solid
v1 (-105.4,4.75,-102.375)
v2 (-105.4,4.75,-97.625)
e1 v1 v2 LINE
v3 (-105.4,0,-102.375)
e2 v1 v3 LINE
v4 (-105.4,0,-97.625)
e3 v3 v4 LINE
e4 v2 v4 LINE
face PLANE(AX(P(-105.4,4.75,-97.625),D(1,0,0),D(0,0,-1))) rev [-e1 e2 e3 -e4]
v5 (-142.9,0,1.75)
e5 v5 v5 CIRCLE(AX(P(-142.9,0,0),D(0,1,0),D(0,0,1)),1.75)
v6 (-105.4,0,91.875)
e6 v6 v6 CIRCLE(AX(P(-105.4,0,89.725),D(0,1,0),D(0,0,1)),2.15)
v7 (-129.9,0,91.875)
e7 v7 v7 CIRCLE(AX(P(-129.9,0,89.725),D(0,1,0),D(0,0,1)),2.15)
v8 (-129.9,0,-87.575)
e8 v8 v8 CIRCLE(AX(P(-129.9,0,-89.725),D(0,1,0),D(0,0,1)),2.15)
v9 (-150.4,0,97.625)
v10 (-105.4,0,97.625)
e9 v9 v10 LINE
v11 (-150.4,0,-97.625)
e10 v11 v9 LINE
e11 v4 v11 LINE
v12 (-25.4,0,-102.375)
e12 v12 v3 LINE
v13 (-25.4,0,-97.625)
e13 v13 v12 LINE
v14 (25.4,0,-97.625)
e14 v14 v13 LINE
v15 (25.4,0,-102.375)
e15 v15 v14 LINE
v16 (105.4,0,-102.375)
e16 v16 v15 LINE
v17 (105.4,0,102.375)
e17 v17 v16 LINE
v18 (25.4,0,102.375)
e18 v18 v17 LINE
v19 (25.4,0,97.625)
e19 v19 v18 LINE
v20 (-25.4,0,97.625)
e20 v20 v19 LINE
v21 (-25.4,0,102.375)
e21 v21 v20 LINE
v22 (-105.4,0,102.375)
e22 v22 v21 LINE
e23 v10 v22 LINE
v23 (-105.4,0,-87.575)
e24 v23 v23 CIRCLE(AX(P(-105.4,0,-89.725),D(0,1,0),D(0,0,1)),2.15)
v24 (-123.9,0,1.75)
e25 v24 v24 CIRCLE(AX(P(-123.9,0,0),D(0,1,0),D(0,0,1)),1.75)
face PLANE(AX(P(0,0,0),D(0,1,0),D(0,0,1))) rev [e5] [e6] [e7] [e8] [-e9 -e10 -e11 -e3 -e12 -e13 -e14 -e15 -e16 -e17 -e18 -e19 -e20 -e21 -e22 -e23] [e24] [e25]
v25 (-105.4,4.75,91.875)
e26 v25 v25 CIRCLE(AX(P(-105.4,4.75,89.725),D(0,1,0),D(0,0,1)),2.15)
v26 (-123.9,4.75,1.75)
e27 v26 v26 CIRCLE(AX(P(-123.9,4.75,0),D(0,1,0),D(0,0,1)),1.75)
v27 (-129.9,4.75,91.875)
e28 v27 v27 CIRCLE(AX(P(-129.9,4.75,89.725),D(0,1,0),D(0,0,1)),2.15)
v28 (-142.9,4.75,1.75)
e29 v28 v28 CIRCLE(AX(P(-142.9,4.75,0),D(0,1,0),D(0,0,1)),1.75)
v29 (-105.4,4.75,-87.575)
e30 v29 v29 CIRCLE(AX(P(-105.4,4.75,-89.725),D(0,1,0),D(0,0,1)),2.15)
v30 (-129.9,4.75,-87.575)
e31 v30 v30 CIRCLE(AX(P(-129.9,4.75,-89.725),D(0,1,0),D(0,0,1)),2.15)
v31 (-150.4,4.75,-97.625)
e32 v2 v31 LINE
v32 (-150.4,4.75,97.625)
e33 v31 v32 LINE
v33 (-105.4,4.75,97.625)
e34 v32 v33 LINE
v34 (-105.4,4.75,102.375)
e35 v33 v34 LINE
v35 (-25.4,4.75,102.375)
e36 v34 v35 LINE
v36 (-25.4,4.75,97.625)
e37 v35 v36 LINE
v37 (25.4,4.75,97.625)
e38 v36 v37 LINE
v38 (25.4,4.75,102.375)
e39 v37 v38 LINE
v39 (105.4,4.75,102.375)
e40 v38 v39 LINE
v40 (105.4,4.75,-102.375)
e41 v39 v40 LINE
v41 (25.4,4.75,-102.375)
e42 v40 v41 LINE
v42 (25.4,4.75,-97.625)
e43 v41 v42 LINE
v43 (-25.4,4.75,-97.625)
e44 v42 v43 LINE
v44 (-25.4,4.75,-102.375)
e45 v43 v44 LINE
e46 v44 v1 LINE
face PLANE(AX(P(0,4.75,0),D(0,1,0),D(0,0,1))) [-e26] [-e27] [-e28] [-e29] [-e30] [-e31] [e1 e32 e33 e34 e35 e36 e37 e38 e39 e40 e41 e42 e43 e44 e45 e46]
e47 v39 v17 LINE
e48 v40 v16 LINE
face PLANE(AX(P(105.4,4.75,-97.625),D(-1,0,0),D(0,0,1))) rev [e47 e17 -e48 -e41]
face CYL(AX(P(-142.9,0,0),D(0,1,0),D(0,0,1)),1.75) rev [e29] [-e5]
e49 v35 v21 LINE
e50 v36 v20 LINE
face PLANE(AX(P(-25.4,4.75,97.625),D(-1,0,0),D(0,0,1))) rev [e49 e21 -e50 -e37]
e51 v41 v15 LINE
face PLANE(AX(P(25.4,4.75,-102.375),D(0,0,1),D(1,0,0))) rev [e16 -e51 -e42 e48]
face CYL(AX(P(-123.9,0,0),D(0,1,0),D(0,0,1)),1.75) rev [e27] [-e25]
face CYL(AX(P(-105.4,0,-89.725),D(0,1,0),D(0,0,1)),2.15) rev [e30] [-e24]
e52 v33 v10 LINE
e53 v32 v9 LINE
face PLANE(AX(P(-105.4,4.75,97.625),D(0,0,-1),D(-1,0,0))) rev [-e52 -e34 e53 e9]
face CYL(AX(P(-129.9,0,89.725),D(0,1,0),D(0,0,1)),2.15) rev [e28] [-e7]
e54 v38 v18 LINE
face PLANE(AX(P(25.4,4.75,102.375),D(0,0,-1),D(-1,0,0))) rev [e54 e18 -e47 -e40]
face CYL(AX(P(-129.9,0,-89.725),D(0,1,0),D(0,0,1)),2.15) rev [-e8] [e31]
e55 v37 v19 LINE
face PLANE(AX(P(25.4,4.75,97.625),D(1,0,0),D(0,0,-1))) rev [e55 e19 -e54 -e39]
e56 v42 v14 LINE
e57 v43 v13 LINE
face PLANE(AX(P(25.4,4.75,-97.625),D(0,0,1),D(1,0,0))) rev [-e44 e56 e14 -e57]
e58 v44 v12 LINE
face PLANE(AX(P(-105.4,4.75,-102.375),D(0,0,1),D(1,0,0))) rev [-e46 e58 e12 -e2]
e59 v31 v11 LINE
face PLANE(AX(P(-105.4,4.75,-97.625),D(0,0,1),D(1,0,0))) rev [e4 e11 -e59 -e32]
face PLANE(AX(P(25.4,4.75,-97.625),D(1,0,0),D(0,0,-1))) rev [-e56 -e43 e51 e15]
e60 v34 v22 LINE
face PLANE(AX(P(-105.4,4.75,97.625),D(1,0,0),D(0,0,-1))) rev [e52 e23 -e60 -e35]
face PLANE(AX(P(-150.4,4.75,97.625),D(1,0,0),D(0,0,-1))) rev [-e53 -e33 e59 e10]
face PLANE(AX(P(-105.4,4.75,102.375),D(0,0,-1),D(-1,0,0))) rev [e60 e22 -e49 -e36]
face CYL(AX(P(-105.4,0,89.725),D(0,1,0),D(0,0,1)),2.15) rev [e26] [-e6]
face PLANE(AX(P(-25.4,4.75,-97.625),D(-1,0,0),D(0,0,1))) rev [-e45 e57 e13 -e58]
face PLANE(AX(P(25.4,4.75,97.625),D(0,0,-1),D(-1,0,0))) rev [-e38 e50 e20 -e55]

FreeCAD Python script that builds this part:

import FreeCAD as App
import Part
import Sketcher

V = App.Vector
Q = App.Units.Quantity

doc = App.newDocument("Part")
params = doc.addObject("Spreadsheet::Sheet", "Params")
for row, (alias, value) in enumerate([
    ("sketch1_width", "45 mm"),
    ("sketch1_width2", "80 mm"),
    ("sketch1_width3", "50.8 mm"),
    ("sketch1_height", "195.25 mm"),
    ("pad1_length", "4.75 mm"),
    ("sketch2_diameter", "3.5 mm"),
    ("pocket1_length", "4.75 mm"),
    ("sketch3_diameter", "4.3 mm"),
    ("pocket2_length", "4.75 mm"),
], start=1):
    params.set(f"A{row}", alias)
    params.set(f"B{row}", "=" + value)
    params.setAlias(f"B{row}", alias)

body = doc.addObject("PartDesign::Body", "Body")

# Sketch on XZ plane
sketch1 = body.newObject("Sketcher::SketchObject", "Sketch")
sketch1.AttachmentSupport = (doc.getObject("XZ_Plane"), [""])
sketch1.MapMode = "FlatFace"
sketch1.addGeometry([
    Part.LineSegment(V(-105.4, -97.6, 0), V(-150.4, -97.6, 0)),  # 0
    Part.LineSegment(V(-150.4, -97.6, 0), V(-150.4, 97.6, 0)),  # 1
    Part.LineSegment(V(-150.4, 97.6, 0), V(-105.4, 97.6, 0)),  # 2
    Part.LineSegment(V(-105.4, 97.6, 0), V(-105.4, 102.4, 0)),  # 3
    Part.LineSegment(V(-105.4, 102.4, 0), V(-25.4, 102.4, 0)),  # 4
    Part.LineSegment(V(-25.4, 102.4, 0), V(-25.4, 97.6, 0)),  # 5
    Part.LineSegment(V(-25.4, 97.6, 0), V(25.4, 97.6, 0)),  # 6
    Part.LineSegment(V(25.4, 97.6, 0), V(25.4, 102.4, 0)),  # 7
    Part.LineSegment(V(25.4, 102.4, 0), V(105.4, 102.4, 0)),  # 8
    Part.LineSegment(V(105.4, 102.4, 0), V(105.4, -102.4, 0)),  # 9
    Part.LineSegment(V(105.4, -102.4, 0), V(25.4, -102.4, 0)),  # 10
    Part.LineSegment(V(25.4, -102.4, 0), V(25.4, -97.6, 0)),  # 11
    Part.LineSegment(V(25.4, -97.6, 0), V(-25.4, -97.6, 0)),  # 12
    Part.LineSegment(V(-25.4, -97.6, 0), V(-25.4, -102.4, 0)),  # 13
    Part.LineSegment(V(-25.4, -102.4, 0), V(-105.4, -102.4, 0)),  # 14
    Part.LineSegment(V(-105.4, -102.4, 0), V(-105.4, -97.6, 0)),  # 15
], False)
sketch1.addConstraint([
    Sketcher.Constraint("Coincident", 0, 2, 1, 1),
    Sketcher.Constraint("Coincident", 1, 2, 2, 1),
    Sketcher.Constraint("Coincident", 2, 2, 3, 1),
    Sketcher.Constraint("Coincident", 3, 2, 4, 1),
    Sketcher.Constraint("Coincident", 4, 2, 5, 1),
    Sketcher.Constraint("Coincident", 5, 2, 6, 1),
    Sketcher.Constraint("Coincident", 6, 2, 7, 1),
    Sketcher.Constraint("Coincident", 7, 2, 8, 1),
    Sketcher.Constraint("Coincident", 8, 2, 9, 1),
    Sketcher.Constraint("Coincident", 9, 2, 10, 1),
    Sketcher.Constraint("Coincident", 10, 2, 11, 1),
    Sketcher.Constraint("Coincident", 11, 2, 12, 1),
    Sketcher.Constraint("Coincident", 12, 2, 13, 1),
    Sketcher.Constraint("Coincident", 13, 2, 14, 1),
    Sketcher.Constraint("Coincident", 14, 2, 15, 1),
    Sketcher.Constraint("Coincident", 15, 2, 0, 1),
    Sketcher.Constraint("Horizontal", 0),
    Sketcher.Constraint("Vertical", 1),
    Sketcher.Constraint("Horizontal", 2),
    Sketcher.Constraint("Vertical", 3),
    Sketcher.Constraint("Horizontal", 4),
    Sketcher.Constraint("Vertical", 5),
    Sketcher.Constraint("Horizontal", 6),
    Sketcher.Constraint("Vertical", 7),
    Sketcher.Constraint("Horizontal", 8),
    Sketcher.Constraint("Vertical", 9),
    Sketcher.Constraint("Horizontal", 10),
    Sketcher.Constraint("Vertical", 11),
    Sketcher.Constraint("Horizontal", 12),
    Sketcher.Constraint("Vertical", 13),
    Sketcher.Constraint("Horizontal", 14),
    Sketcher.Constraint("Vertical", 15),
    Sketcher.Constraint("Symmetric", 3, 2, 9, 2, -1, 1),
    Sketcher.Constraint("Symmetric", 5, 2, 11, 2, -1, 1),
    Sketcher.Constraint("Symmetric", 7, 2, 13, 2, -1, 1),
    Sketcher.Constraint("Symmetric", 4, 2, 7, 2, -2),
    Sketcher.Constraint("Symmetric", 2, 2, 15, 2, -1),
    Sketcher.Constraint("Horizontal", 2, 2, 5, 2),
    Sketcher.Constraint("DistanceX", 0, 2, 0, 1, Q("45 mm")),
    Sketcher.Constraint("DistanceX", 4, 1, 4, 2, Q("80 mm")),
    Sketcher.Constraint("DistanceX", 6, 1, 6, 2, Q("50.8 mm")),
    Sketcher.Constraint("DistanceY", 0, 2, 3, 2, Q("200 mm")),
    Sketcher.Constraint("DistanceY", 1, 1, 1, 2, Q("195.25 mm")),
])
sketch1.setExpression("Constraints[38]", "Params.sketch1_width")
sketch1.setExpression("Constraints[39]", "Params.sketch1_width2")
sketch1.setExpression("Constraints[40]", "Params.sketch1_width3")
sketch1.setExpression("Constraints[42]", "Params.sketch1_height")
pad1 = body.newObject("PartDesign::Pad", "Pad")
pad1.Profile = sketch1
pad1.setExpression("Length", "Params.pad1_length")
pad1.Reversed = True

# Sketch on XZ plane
sketch2 = body.newObject("Sketcher::SketchObject", "Sketch001")
sketch2.AttachmentSupport = (doc.getObject("XZ_Plane"), [""])
sketch2.MapMode = "FlatFace"
sketch2.AttachmentOffset = App.Placement(V(0, 0, -4.75), App.Rotation())
sketch2.addGeometry([
    Part.Circle(V(-123.9, 0, 0), V(0, 0, 1), 1.8),
    Part.Circle(V(-142.9, 0, 0), V(0, 0, 1), 1.8),
], False)
sketch2.addConstraint([
    Sketcher.Constraint("Equal", 0, 1),
    Sketcher.Constraint("PointOnObject", 0, 3, -1),
    Sketcher.Constraint("PointOnObject", 1, 3, -1),
    Sketcher.Constraint("Diameter", 0, Q("3.5 mm")),
    Sketcher.Constraint("DistanceX", 1, 3, 0, 3, Q("19 mm")),
    Sketcher.Constraint("DistanceX", 0, 3, -1, 1, Q("123.9 mm")),
])
sketch2.setExpression("Constraints[3]", "Params.sketch2_diameter")
pocket1 = body.newObject("PartDesign::Pocket", "Pocket")
pocket1.Profile = sketch2
pocket1.setExpression("Length", "Params.pocket1_length")
pocket1.Reversed = True

# Sketch on XZ plane
sketch3 = body.newObject("Sketcher::SketchObject", "Sketch002")
sketch3.AttachmentSupport = (doc.getObject("XZ_Plane"), [""])
sketch3.MapMode = "FlatFace"
sketch3.AttachmentOffset = App.Placement(V(0, 0, -4.75), App.Rotation())
sketch3.addGeometry([
    Part.Circle(V(-105.4, 89.7, 0), V(0, 0, 1), 2.1),
    Part.Circle(V(-129.9, 89.7, 0), V(0, 0, 1), 2.1),
    Part.Circle(V(-105.4, -89.7, 0), V(0, 0, 1), 2.1),
    Part.Circle(V(-129.9, -89.7, 0), V(0, 0, 1), 2.1),
], False)
sketch3.addConstraint([
    Sketcher.Constraint("Equal", 0, 1),
    Sketcher.Constraint("Equal", 1, 2),
    Sketcher.Constraint("Equal", 2, 3),
    Sketcher.Constraint("Symmetric", 0, 3, 2, 3, -1),
    Sketcher.Constraint("Symmetric", 1, 3, 3, 3, -1),
    Sketcher.Constraint("Horizontal", 0, 3, 1, 3),
    Sketcher.Constraint("Diameter", 0, Q("4.3 mm")),
    Sketcher.Constraint("DistanceX", 0, 3, -1, 1, Q("105.4 mm")),
    Sketcher.Constraint("DistanceX", 1, 3, -1, 1, Q("129.9 mm")),
    Sketcher.Constraint("DistanceY", 2, 3, 0, 3, Q("179.45 mm")),
])
sketch3.setExpression("Constraints[6]", "Params.sketch3_diameter")
pocket2 = body.newObject("PartDesign::Pocket", "Pocket001")
pocket2.Profile = sketch3
pocket2.setExpression("Length", "Params.pocket2_length")
pocket2.Reversed = True

doc.recompute()
